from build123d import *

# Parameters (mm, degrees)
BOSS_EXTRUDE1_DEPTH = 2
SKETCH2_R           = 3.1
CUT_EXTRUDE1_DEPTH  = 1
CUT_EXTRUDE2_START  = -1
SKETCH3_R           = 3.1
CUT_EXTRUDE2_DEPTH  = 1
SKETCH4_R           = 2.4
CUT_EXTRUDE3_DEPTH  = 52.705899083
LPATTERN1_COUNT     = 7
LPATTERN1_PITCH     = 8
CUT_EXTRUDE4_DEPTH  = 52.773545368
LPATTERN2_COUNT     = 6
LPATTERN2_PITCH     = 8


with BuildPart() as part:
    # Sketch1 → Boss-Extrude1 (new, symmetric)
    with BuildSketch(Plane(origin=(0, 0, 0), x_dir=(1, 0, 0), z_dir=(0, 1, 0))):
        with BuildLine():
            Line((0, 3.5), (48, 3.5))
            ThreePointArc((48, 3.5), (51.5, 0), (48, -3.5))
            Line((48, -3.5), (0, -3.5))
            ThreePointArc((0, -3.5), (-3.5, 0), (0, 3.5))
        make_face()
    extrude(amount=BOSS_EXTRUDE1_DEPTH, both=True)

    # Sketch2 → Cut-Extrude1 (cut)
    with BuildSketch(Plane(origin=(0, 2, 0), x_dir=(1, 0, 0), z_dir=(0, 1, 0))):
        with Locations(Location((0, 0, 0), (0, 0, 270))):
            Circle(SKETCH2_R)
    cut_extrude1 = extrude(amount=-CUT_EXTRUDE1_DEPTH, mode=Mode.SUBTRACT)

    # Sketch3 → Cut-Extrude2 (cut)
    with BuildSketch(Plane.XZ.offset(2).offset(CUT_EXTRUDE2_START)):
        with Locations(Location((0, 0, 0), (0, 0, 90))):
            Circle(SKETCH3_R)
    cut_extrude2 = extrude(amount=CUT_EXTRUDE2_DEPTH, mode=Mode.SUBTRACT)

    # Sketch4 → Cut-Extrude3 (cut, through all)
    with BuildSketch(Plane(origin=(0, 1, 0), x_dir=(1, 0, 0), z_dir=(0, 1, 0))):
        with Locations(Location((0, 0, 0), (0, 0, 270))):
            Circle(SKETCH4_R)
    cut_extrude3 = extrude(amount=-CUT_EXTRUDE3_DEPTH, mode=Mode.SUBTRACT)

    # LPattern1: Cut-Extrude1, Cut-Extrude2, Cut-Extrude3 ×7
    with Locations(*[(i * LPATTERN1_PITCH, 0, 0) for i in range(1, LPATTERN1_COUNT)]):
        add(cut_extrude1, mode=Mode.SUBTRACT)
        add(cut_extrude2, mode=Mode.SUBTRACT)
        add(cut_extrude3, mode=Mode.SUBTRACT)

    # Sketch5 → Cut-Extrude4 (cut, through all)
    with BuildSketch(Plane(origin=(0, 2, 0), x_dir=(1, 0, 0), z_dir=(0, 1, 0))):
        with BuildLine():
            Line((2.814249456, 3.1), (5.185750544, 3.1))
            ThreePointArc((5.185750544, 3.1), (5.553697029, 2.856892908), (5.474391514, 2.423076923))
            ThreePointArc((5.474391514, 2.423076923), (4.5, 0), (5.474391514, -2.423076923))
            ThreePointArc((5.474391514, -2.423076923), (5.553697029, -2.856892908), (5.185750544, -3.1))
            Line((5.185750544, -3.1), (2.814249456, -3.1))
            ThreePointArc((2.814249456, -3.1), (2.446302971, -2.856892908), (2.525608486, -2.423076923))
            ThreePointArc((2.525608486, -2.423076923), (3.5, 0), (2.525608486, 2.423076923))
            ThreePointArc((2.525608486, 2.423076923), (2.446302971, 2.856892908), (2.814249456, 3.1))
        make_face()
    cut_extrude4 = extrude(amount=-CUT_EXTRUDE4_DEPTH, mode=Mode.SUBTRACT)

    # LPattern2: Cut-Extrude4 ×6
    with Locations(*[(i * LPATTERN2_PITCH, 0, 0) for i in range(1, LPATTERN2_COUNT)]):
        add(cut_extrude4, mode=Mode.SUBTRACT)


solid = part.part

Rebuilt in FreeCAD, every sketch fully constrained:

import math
import FreeCAD as App
import Part
import Sketcher
from FreeCAD import Vector

doc = App.newDocument("Part")
body = doc.addObject("PartDesign::Body", "Body")

# Sketch on XZ plane
sketch1 = body.newObject("Sketcher::SketchObject", "Sketch")
sketch1.AttachmentSupport = (doc.getObject("XZ_Plane"), [""])
sketch1.MapMode = "FlatFace"
sketch1.addGeometry([
    Part.LineSegment(Vector(48, -3.5, 0), Vector(0, -3.5, 0)),
    Part.ArcOfCircle(Part.Circle(Vector(0, 0, 0), Vector(0, 0, 1), 3.5), math.radians(90), math.radians(270)),
    Part.LineSegment(Vector(0, 3.5, 0), Vector(48, 3.5, 0)),
    Part.ArcOfCircle(Part.Circle(Vector(48, 0, 0), Vector(0, 0, 1), 3.5), math.radians(-90), math.radians(90)),
], False)
sketch1.addConstraint([
    Sketcher.Constraint("Tangent", 0, 2, 1, 2),
    Sketcher.Constraint("Tangent", 1, 1, 2, 1),
    Sketcher.Constraint("Tangent", 2, 2, 3, 2),
    Sketcher.Constraint("Tangent", 3, 1, 0, 1),
    Sketcher.Constraint("Horizontal", 0),
    Sketcher.Constraint("Horizontal", 2),
    Sketcher.Constraint("Coincident", 1, 3, -1, 1),
    Sketcher.Constraint("Radius", 1, 3.5),
    Sketcher.Constraint("DistanceX", 0, 2, 0, 1, 48.0),
])
pad1 = body.newObject("PartDesign::Pad", "Pad")
pad1.Profile = sketch1
pad1.Length = 4
pad1.Midplane = True

# Sketch on XZ plane
sketch2 = body.newObject("Sketcher::SketchObject", "Sketch001")
sketch2.AttachmentSupport = (doc.getObject("XZ_Plane"), [""])
sketch2.MapMode = "FlatFace"
sketch2.AttachmentOffset = App.Placement(Vector(0, 0, -2), App.Rotation())
sketch2.addGeometry(Part.Circle(Vector(0, 0, 0), Vector(0, 0, 1), 3.1), False)
sketch2.addConstraint([
    Sketcher.Constraint("Coincident", 0, 3, -1, 1),
    Sketcher.Constraint("Diameter", 0, 6.2),
])
pocket1 = body.newObject("PartDesign::Pocket", "Pocket")
pocket1.Profile = sketch2
pocket1.Length = 1
pocket1.Reversed = True

# Sketch on XZ plane
sketch3 = body.newObject("Sketcher::SketchObject", "Sketch002")
sketch3.AttachmentSupport = (doc.getObject("XZ_Plane"), [""])
sketch3.MapMode = "FlatFace"
sketch3.AttachmentOffset = App.Placement(Vector(0, 0, 1), App.Rotation())
sketch3.addGeometry(Part.Circle(Vector(0, 0, 0), Vector(0, 0, 1), 3.1), False)
sketch3.addConstraint([
    Sketcher.Constraint("Coincident", 0, 3, -1, 1),
    Sketcher.Constraint("Diameter", 0, 6.2),
])
pocket2 = body.newObject("PartDesign::Pocket", "Pocket001")
pocket2.Profile = sketch3
pocket2.Length = 1
pocket2.Reversed = True

# Sketch on XZ plane
sketch4 = body.newObject("Sketcher::SketchObject", "Sketch003")
sketch4.AttachmentSupport = (doc.getObject("XZ_Plane"), [""])
sketch4.MapMode = "FlatFace"
sketch4.AttachmentOffset = App.Placement(Vector(0, 0, -1), App.Rotation())
sketch4.addGeometry(Part.Circle(Vector(0, 0, 0), Vector(0, 0, 1), 2.4), False)
sketch4.addConstraint([
    Sketcher.Constraint("Coincident", 0, 3, -1, 1),
    Sketcher.Constraint("Diameter", 0, 4.8),
])
pocket3 = body.newObject("PartDesign::Pocket", "Pocket002")
pocket3.Profile = sketch4
pocket3.Type = "ThroughAll"
pocket3.Reversed = True
doc.recompute()

linearpattern = body.newObject("PartDesign::LinearPattern", "LinearPattern")
linearpattern.Originals = [pocket1, pocket2, pocket3]
linearpattern.Direction = (doc.getObject("X_Axis"), [""])
linearpattern.Mode = "offset"
linearpattern.Offset = 8
linearpattern.Occurrences = 7
body.Tip = linearpattern

# Sketch on XZ plane
sketch5 = body.newObject("Sketcher::SketchObject", "Sketch004")
sketch5.AttachmentSupport = (doc.getObject("XZ_Plane"), [""])
sketch5.MapMode = "FlatFace"
sketch5.AttachmentOffset = App.Placement(Vector(0, 0, -2), App.Rotation())
sketch5.addGeometry([
    Part.LineSegment(Vector(5.185751, -3.1, 0), Vector(2.814249, -3.1, 0)),  # 0
    Part.ArcOfCircle(Part.Circle(Vector(2.814249, -2.7, 0), Vector(0, 0, 1), 0.4), math.radians(136.186938), math.radians(270)),  # 1
    Part.ArcOfCircle(Part.Circle(Vector(0, 0, 0), Vector(0, 0, 1), 3.5), math.radians(-43.813061), math.radians(43.813061)),  # 2
    Part.ArcOfCircle(Part.Circle(Vector(2.814249, 2.7, 0), Vector(0, 0, 1), 0.4), math.radians(90), math.radians(223.813062)),  # 3
    Part.LineSegment(Vector(2.814249, 3.1, 0), Vector(5.185751, 3.1, 0)),  # 4
    Part.ArcOfCircle(Part.Circle(Vector(5.185751, 2.7, 0), Vector(0, 0, 1), 0.4), math.radians(-43.813062), math.radians(90)),  # 5
    Part.ArcOfCircle(Part.Circle(Vector(8, 0, 0), Vector(0, 0, 1), 3.5), math.radians(136.186939), math.radians(223.813061)),  # 6
    Part.ArcOfCircle(Part.Circle(Vector(5.185751, -2.7, 0), Vector(0, 0, 1), 0.4), math.radians(-90), math.radians(43.813062)),  # 7
], False)
sketch5.addConstraint([
    Sketcher.Constraint("Tangent", 0, 2, 1, 2),
    Sketcher.Constraint("Tangent", 1, 1, 2, 1),
    Sketcher.Constraint("Tangent", 2, 2, 3, 2),
    Sketcher.Constraint("Tangent", 3, 1, 4, 1),
    Sketcher.Constraint("Tangent", 4, 2, 5, 2),
    Sketcher.Constraint("Tangent", 5, 1, 6, 1),
    Sketcher.Constraint("Tangent", 6, 2, 7, 2),
    Sketcher.Constraint("Tangent", 7, 1, 0, 1),
    Sketcher.Constraint("Horizontal", 0),
    Sketcher.Constraint("Horizontal", 4),
    Sketcher.Constraint("Coincident", 2, 3, -1, 1),
    Sketcher.Constraint("Equal", 1, 3),
    Sketcher.Constraint("Equal", 3, 5),
    Sketcher.Constraint("Equal", 2, 6),
    Sketcher.Constraint("Equal", 5, 7),
    Sketcher.Constraint("Symmetric", 5, 3, 7, 3, -1),
    Sketcher.Constraint("Radius", 1, 0.4),
    Sketcher.Constraint("Radius", 2, 3.5),
    Sketcher.Constraint("DistanceX", -1, 1, 6, 3, 8.0),
    Sketcher.Constraint("DistanceY", 1, 3, -1, 1, 2.7),
])
pocket4 = body.newObject("PartDesign::Pocket", "Pocket003")
pocket4.Profile = sketch5
pocket4.Type = "ThroughAll"
pocket4.Reversed = True
doc.recompute()

linearpattern2 = body.newObject("PartDesign::LinearPattern", "LinearPattern001")
linearpattern2.Originals = [pocket4]
linearpattern2.Direction = (doc.getObject("X_Axis"), [""])
linearpattern2.Mode = "offset"
linearpattern2.Offset = 8
linearpattern2.Occurrences = 6
body.Tip = linearpattern2

doc.recompute()
